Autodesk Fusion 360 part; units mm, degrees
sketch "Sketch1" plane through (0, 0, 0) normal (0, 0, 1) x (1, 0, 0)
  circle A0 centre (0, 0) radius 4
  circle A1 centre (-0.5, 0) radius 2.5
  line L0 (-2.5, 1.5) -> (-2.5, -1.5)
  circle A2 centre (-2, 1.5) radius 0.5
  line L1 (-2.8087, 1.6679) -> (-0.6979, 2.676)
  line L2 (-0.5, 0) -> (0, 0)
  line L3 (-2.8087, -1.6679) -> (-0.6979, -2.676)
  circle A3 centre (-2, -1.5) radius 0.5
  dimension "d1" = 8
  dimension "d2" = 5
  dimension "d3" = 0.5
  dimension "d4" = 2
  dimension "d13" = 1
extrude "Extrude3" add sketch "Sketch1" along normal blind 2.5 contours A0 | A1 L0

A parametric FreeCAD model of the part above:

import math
import FreeCAD as App
import Part
import Sketcher

V = App.Vector
Q = App.Units.Quantity

doc = App.newDocument("Part")
params = doc.addObject("Spreadsheet::Sheet", "Params")
for row, (alias, value) in enumerate([
    ("sketch1_diameter", "8 mm"),
    ("sketch1_radius", "0.5 mm"),
    ("sketch1_radius2", "2.5 mm"),
    ("sketch1_height", "3 mm"),
    ("pad1_length", "2.5 mm"),
], start=1):
    params.set(f"A{row}", alias)
    params.set(f"B{row}", "=" + value)
    params.setAlias(f"B{row}", alias)

body = doc.addObject("PartDesign::Body", "Body")

# Sketch on XY plane
sketch1 = body.newObject("Sketcher::SketchObject", "Sketch")
sketch1.AttachmentSupport = (doc.getObject("XY_Plane"), [""])
sketch1.MapMode = "FlatFace"
sketch1.addGeometry([
    Part.Circle(V(0, 0, 0), V(0, 0, 1), 4),  # 0
    Part.ArcOfCircle(Part.Circle(V(-2, -1.5, 0), V(0, 0, 1), 0.5), math.radians(180), math.radians(244.471258)),  # 1
    Part.LineSegment(V(-2.5, -1.5, 0), V(-2.5, 1.5, 0)),  # 2
    Part.ArcOfCircle(Part.Circle(V(-2, 1.5, 0), V(0, 0, 1), 0.5), math.radians(115.528742), math.radians(180)),  # 3
    Part.LineSegment(V(-2.215494, 1.95121, 0), V(-1.577421, 2.255948, 0)),  # 4
    Part.ArcOfCircle(Part.Circle(V(-0.5, 0, 0), V(0, 0, 1), 2.5), math.radians(-115.528742), math.radians(115.528741)),  # 5
    Part.LineSegment(V(-1.577421, -2.255948, 0), V(-2.215494, -1.95121, 0)),  # 6
], False)
sketch1.addConstraint([
    Sketcher.Constraint("Tangent", 1, 1, 2, 1),
    Sketcher.Constraint("Tangent", 2, 2, 3, 2),
    Sketcher.Constraint("Tangent", 3, 1, 4, 1),
    Sketcher.Constraint("Tangent", 4, 2, 5, 2),
    Sketcher.Constraint("Tangent", 5, 1, 6, 1),
    Sketcher.Constraint("Tangent", 6, 2, 1, 2),
    Sketcher.Constraint("Vertical", 2),
    Sketcher.Constraint("Coincident", 0, 3, -1, 1),
    Sketcher.Constraint("Equal", 1, 3),
    Sketcher.Constraint("Symmetric", 4, 2, 5, 1, -1),
    Sketcher.Constraint("Diameter", 0, Q("8 mm")),
    Sketcher.Constraint("Radius", 1, Q("0.5 mm")),
    Sketcher.Constraint("Radius", 5, Q("2.5 mm")),
    Sketcher.Constraint("DistanceX", 1, 3, -1, 1, Q("2 mm")),
    Sketcher.Constraint("DistanceX", 1, 1, 5, 3, Q("2 mm")),
    Sketcher.Constraint("DistanceY", 2, 1, 2, 2, Q("3 mm")),
])
sketch1.setExpression("Constraints[10]", "Params.sketch1_diameter")
sketch1.setExpression("Constraints[11]", "Params.sketch1_radius")
sketch1.setExpression("Constraints[12]", "Params.sketch1_radius2")
sketch1.setExpression("Constraints[15]", "Params.sketch1_height")
pad1 = body.newObject("PartDesign::Pad", "Pad")
pad1.Profile = sketch1
pad1.setExpression("Length", "Params.pad1_length")

doc.recompute()
